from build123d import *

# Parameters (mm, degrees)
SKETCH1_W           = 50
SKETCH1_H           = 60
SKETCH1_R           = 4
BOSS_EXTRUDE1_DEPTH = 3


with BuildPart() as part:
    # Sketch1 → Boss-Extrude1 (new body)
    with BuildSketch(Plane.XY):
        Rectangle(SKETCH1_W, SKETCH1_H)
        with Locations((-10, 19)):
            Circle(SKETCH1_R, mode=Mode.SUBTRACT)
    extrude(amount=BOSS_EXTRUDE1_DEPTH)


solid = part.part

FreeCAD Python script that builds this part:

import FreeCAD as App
import Part
import Sketcher
from FreeCAD import Vector
Q = App.Units.Quantity


def add_polygon(sketch, points):
    """Adds a closed chain of lines whose ends are joined by coincident constraints."""
    first, n = sketch.GeometryCount, len(points)
    for a, b in zip(points, points[1:] + points[:1]):
        sketch.addGeometry(Part.LineSegment(App.Vector(*a, 0), App.Vector(*b, 0)), False)
    for i in range(n):
        sketch.addConstraint(Sketcher.Constraint("Coincident", first + i, 2, first + (i + 1) % n, 1))

doc = App.newDocument("Part")
body = doc.addObject("PartDesign::Body", "Body")

# Sketch on XY plane
sketch1 = body.newObject("Sketcher::SketchObject", "Sketch")
sketch1.AttachmentSupport = (doc.getObject("XY_Plane"), [""])
sketch1.MapMode = "FlatFace"
add_polygon(sketch1, [(-25, 30), (-25, -30), (25, -30), (25, 30)])  # lines 0-3
sketch1.addGeometry(Part.Circle(Vector(-10, 19, 0), Vector(0, 0, 1), 4), False)  # 4
sketch1.addConstraint([
    Sketcher.Constraint("Vertical", 0),
    Sketcher.Constraint("Horizontal", 1),
    Sketcher.Constraint("Vertical", 2),
    Sketcher.Constraint("Horizontal", 3),
    Sketcher.Constraint("Symmetric", 0, 2, 2, 2, -1, 1),
    Sketcher.Constraint("Diameter", 4, Q("8 mm")),
    Sketcher.Constraint("DistanceX", 1, 1, 1, 2, Q("50 mm")),
    Sketcher.Constraint("DistanceY", 0, 2, 0, 1, Q("60 mm")),
    Sketcher.Constraint("DistanceX", 4, 3, -1, 1, Q("10 mm")),
    Sketcher.Constraint("DistanceY", -1, 1, 4, 3, Q("19 mm")),
])
pad1 = body.newObject("PartDesign::Pad", "Pad")
pad1.Profile = sketch1
pad1.Length = 3

doc.recompute()
